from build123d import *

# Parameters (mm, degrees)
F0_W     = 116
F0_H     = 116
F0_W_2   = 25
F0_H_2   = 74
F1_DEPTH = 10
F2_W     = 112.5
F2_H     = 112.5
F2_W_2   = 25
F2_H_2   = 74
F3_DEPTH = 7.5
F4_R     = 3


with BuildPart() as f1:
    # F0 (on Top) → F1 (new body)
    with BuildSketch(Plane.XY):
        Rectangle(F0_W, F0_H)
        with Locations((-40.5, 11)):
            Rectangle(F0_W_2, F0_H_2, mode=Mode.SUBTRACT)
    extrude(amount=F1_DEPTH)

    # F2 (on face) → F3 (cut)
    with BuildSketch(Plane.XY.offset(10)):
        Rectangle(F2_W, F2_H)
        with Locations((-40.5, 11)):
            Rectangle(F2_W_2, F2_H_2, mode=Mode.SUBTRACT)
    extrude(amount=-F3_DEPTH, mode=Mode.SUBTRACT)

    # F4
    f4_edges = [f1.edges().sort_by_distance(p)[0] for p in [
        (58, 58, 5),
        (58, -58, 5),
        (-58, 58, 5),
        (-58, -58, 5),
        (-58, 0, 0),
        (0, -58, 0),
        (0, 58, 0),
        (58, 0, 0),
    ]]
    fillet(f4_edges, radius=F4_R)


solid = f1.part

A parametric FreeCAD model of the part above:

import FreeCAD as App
import Part
import Sketcher
Q = App.Units.Quantity


def edges_at(feature, points):
    """Names of the edges that pass closest to the given points."""
    edges = feature.Shape.Edges
    near = lambda p: min(range(len(edges)), key=lambda i: edges[i].distToShape(Part.Vertex(*p))[0])
    return sorted({f"Edge{near(p) + 1}" for p in points})

doc = App.newDocument("Part")
body = doc.addObject("PartDesign::Body", "Body")

# Sketch on XY plane
sketch1 = doc.addObject("Sketcher::SketchObject", "Sketch")
body.addObject(sketch1)
sketch1.AttachmentSupport = (doc.XY_Plane, [""])
sketch1.MapMode = "FlatFace"
sketch1.addGeometry(Part.LineSegment(App.Vector(-58, 58, 0), App.Vector(-58, -58, 0)), False)
sketch1.addGeometry(Part.LineSegment(App.Vector(-58, -58, 0), App.Vector(58, -58, 0)), False)
sketch1.addGeometry(Part.LineSegment(App.Vector(58, -58, 0), App.Vector(58, 58, 0)), False)
sketch1.addGeometry(Part.LineSegment(App.Vector(58, 58, 0), App.Vector(-58, 58, 0)), False)
sketch1.addGeometry(Part.LineSegment(App.Vector(-28, -26, 0), App.Vector(-53, -26, 0)), False)
sketch1.addGeometry(Part.LineSegment(App.Vector(-53, -26, 0), App.Vector(-53, 48, 0)), False)
sketch1.addGeometry(Part.LineSegment(App.Vector(-53, 48, 0), App.Vector(-28, 48, 0)), False)
sketch1.addGeometry(Part.LineSegment(App.Vector(-28, 48, 0), App.Vector(-28, -26, 0)), False)
sketch1.addConstraint(Sketcher.Constraint("Coincident", 0, 2, 1, 1))
sketch1.addConstraint(Sketcher.Constraint("Coincident", 1, 2, 2, 1))
sketch1.addConstraint(Sketcher.Constraint("Coincident", 2, 2, 3, 1))
sketch1.addConstraint(Sketcher.Constraint("Coincident", 3, 2, 0, 1))
sketch1.addConstraint(Sketcher.Constraint("Coincident", 4, 2, 5, 1))
sketch1.addConstraint(Sketcher.Constraint("Coincident", 5, 2, 6, 1))
sketch1.addConstraint(Sketcher.Constraint("Coincident", 6, 2, 7, 1))
sketch1.addConstraint(Sketcher.Constraint("Coincident", 7, 2, 4, 1))
sketch1.addConstraint(Sketcher.Constraint("Vertical", 0))
sketch1.addConstraint(Sketcher.Constraint("Horizontal", 1))
sketch1.addConstraint(Sketcher.Constraint("Vertical", 2))
sketch1.addConstraint(Sketcher.Constraint("Horizontal", 3))
sketch1.addConstraint(Sketcher.Constraint("Horizontal", 4))
sketch1.addConstraint(Sketcher.Constraint("Vertical", 5))
sketch1.addConstraint(Sketcher.Constraint("Horizontal", 6))
sketch1.addConstraint(Sketcher.Constraint("Vertical", 7))
sketch1.addConstraint(Sketcher.Constraint("Symmetric", 0, 2, 2, 2, -1, 1))
sketch1.addConstraint(Sketcher.Constraint("Equal", 3, 0))
sketch1.addConstraint(Sketcher.Constraint("DistanceX", 1, 1, 1, 2, Q("116 mm")))
sketch1.addConstraint(Sketcher.Constraint("DistanceX", 4, 2, 4, 1, Q("25 mm")))
sketch1.addConstraint(Sketcher.Constraint("DistanceY", 5, 1, 5, 2, Q("74 mm")))
sketch1.addConstraint(Sketcher.Constraint("DistanceX", 4, 2, -1, 1, Q("53 mm")))
sketch1.addConstraint(Sketcher.Constraint("DistanceY", 4, 2, -1, 1, Q("26 mm")))
pad1 = doc.addObject("PartDesign::Pad", "Pad")
body.addObject(pad1)
pad1.Profile = sketch1
pad1.Length = 10

# Sketch on XY plane
sketch2 = doc.addObject("Sketcher::SketchObject", "Sketch001")
body.addObject(sketch2)
sketch2.AttachmentSupport = (doc.XY_Plane, [""])
sketch2.MapMode = "FlatFace"
sketch2.AttachmentOffset = App.Placement(App.Vector(0, 0, 10), App.Rotation())
sketch2.addGeometry(Part.LineSegment(App.Vector(-56, 56, 0), App.Vector(-56, -56, 0)), False)
sketch2.addGeometry(Part.LineSegment(App.Vector(-56, -56, 0), App.Vector(56, -56, 0)), False)
sketch2.addGeometry(Part.LineSegment(App.Vector(56, -56, 0), App.Vector(56, 56, 0)), False)
sketch2.addGeometry(Part.LineSegment(App.Vector(56, 56, 0), App.Vector(-56, 56, 0)), False)
sketch2.addGeometry(Part.LineSegment(App.Vector(-28, -26, 0), App.Vector(-53, -26, 0)), False)
sketch2.addGeometry(Part.LineSegment(App.Vector(-53, -26, 0), App.Vector(-53, 48, 0)), False)
sketch2.addGeometry(Part.LineSegment(App.Vector(-53, 48, 0), App.Vector(-28, 48, 0)), False)
sketch2.addGeometry(Part.LineSegment(App.Vector(-28, 48, 0), App.Vector(-28, -26, 0)), False)
sketch2.addConstraint(Sketcher.Constraint("Coincident", 0, 2, 1, 1))
sketch2.addConstraint(Sketcher.Constraint("Coincident", 1, 2, 2, 1))
sketch2.addConstraint(Sketcher.Constraint("Coincident", 2, 2, 3, 1))
sketch2.addConstraint(Sketcher.Constraint("Coincident", 3, 2, 0, 1))
sketch2.addConstraint(Sketcher.Constraint("Coincident", 4, 2, 5, 1))
sketch2.addConstraint(Sketcher.Constraint("Coincident", 5, 2, 6, 1))
sketch2.addConstraint(Sketcher.Constraint("Coincident", 6, 2, 7, 1))
sketch2.addConstraint(Sketcher.Constraint("Coincident", 7, 2, 4, 1))
sketch2.addConstraint(Sketcher.Constraint("Vertical", 0))
sketch2.addConstraint(Sketcher.Constraint("Horizontal", 1))
sketch2.addConstraint(Sketcher.Constraint("Vertical", 2))
sketch2.addConstraint(Sketcher.Constraint("Horizontal", 3))
sketch2.addConstraint(Sketcher.Constraint("Horizontal", 4))
sketch2.addConstraint(Sketcher.Constraint("Vertical", 5))
sketch2.addConstraint(Sketcher.Constraint("Horizontal", 6))
sketch2.addConstraint(Sketcher.Constraint("Vertical", 7))
sketch2.addConstraint(Sketcher.Constraint("Symmetric", 0, 2, 2, 2, -1, 1))
sketch2.addConstraint(Sketcher.Constraint("Equal", 3, 0))
sketch2.addConstraint(Sketcher.Constraint("DistanceX", 4, 2, 4, 1, Q("25 mm")))
sketch2.addConstraint(Sketcher.Constraint("DistanceY", 5, 1, 5, 2, Q("74 mm")))
sketch2.addConstraint(Sketcher.Constraint("DistanceX", 1, 1, 1, 2, Q("112.5 mm")))
sketch2.addConstraint(Sketcher.Constraint("DistanceX", 4, 2, -1, 1, Q("53 mm")))
sketch2.addConstraint(Sketcher.Constraint("DistanceY", 4, 2, -1, 1, Q("26 mm")))
pocket1 = doc.addObject("PartDesign::Pocket", "Pocket")
body.addObject(pocket1)
pocket1.Profile = sketch2
pocket1.Length = 7.5
doc.recompute()

fillet = doc.addObject("PartDesign::Fillet", "Fillet")
body.addObject(fillet)
fillet.Base = (pocket1, edges_at(pocket1, [
    (58, 58, 5),
    (58, -58, 5),
    (-58, 58, 5),
    (-58, -58, 5),
    (-58, 0, 0),
    (0, -58, 0),
    (0, 58, 0),
    (58, 0, 0),
]))
fillet.Radius = 3

doc.recompute()
